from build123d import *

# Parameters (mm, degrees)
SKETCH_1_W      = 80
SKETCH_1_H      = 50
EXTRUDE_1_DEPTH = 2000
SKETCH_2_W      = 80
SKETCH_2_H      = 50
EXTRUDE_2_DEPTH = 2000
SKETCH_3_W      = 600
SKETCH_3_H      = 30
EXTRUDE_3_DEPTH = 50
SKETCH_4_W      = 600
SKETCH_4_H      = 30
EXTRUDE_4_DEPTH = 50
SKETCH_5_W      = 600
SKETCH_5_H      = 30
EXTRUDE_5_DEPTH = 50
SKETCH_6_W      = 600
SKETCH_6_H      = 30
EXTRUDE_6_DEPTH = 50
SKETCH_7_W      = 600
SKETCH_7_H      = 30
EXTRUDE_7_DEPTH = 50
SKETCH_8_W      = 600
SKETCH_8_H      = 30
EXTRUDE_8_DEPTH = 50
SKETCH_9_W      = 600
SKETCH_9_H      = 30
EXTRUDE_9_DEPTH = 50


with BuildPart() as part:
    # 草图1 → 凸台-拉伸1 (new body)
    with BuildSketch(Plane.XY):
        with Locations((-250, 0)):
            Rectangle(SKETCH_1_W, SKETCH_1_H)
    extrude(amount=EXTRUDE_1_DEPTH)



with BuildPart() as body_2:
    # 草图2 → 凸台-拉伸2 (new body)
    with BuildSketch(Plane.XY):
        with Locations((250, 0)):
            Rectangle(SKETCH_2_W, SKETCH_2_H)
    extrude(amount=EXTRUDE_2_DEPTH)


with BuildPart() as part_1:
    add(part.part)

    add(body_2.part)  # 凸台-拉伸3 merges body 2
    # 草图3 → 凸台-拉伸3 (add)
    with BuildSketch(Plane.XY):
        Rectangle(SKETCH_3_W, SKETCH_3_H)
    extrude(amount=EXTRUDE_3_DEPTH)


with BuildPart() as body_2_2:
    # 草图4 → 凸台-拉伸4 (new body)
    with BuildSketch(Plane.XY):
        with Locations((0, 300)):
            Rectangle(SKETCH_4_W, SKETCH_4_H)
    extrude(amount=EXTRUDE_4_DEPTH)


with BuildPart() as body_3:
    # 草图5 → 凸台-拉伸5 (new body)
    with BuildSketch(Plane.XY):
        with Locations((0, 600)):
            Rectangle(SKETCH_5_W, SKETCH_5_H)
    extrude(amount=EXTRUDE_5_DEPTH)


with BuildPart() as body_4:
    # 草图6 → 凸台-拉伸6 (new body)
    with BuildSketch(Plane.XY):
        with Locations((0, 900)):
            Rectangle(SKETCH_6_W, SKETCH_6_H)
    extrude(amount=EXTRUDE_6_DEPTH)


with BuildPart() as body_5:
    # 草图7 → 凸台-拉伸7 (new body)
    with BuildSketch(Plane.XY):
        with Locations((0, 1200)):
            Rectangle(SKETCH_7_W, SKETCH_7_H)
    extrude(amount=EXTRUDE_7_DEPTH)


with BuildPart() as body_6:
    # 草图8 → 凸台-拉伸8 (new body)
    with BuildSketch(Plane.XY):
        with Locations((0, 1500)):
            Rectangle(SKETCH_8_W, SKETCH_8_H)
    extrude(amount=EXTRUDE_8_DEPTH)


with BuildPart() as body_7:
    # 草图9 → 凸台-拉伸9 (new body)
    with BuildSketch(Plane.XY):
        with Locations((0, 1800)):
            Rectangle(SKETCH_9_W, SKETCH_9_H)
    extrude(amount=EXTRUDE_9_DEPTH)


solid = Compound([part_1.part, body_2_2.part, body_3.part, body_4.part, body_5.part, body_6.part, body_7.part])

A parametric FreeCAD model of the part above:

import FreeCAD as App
import Part
import Sketcher


def add_polygon(sketch, points):
    """Adds a closed chain of lines whose ends are joined by coincident constraints."""
    first, n = sketch.GeometryCount, len(points)
    for a, b in zip(points, points[1:] + points[:1]):
        sketch.addGeometry(Part.LineSegment(App.Vector(*a, 0), App.Vector(*b, 0)), False)
    for i in range(n):
        sketch.addConstraint(Sketcher.Constraint("Coincident", first + i, 2, first + (i + 1) % n, 1))

doc = App.newDocument("Part")
body = doc.addObject("PartDesign::Body", "Body")

# Sketch on XY plane
sketch1 = doc.addObject("Sketcher::SketchObject", "Sketch")
body.addObject(sketch1)
sketch1.AttachmentSupport = (doc.XY_Plane, [""])
sketch1.MapMode = "FlatFace"
add_polygon(sketch1, [(-290, 25), (-290, -25), (-210, -25), (-210, 25)])  # lines 0-3
sketch1.addConstraint([
    Sketcher.Constraint("Vertical", 0),
    Sketcher.Constraint("Horizontal", 1),
    Sketcher.Constraint("Vertical", 2),
    Sketcher.Constraint("Horizontal", 3),
    Sketcher.Constraint("DistanceX", 1, 1, 1, 2, 80.0),
    Sketcher.Constraint("DistanceY", 0, 2, 0, 1, 50.0),
    Sketcher.Constraint("DistanceX", 0, 2, -1, 1, 290.0),
    Sketcher.Constraint("DistanceY", 0, 2, -1, 1, 25.0),
])
pad1 = doc.addObject("PartDesign::Pad", "Pad")
body.addObject(pad1)
pad1.Profile = sketch1
pad1.Length = 2000
body2 = doc.addObject("PartDesign::Body", "Body001")

# Sketch on XY plane
sketch2 = doc.addObject("Sketcher::SketchObject", "Sketch001")
body2.addObject(sketch2)
sketch2.AttachmentSupport = (doc.getObject("XY_Plane001"), [""])
sketch2.MapMode = "FlatFace"
add_polygon(sketch2, [(210, 25), (210, -25), (290, -25), (290, 25)])  # lines 0-3
sketch2.addConstraint([
    Sketcher.Constraint("Vertical", 0),
    Sketcher.Constraint("Horizontal", 1),
    Sketcher.Constraint("Vertical", 2),
    Sketcher.Constraint("Horizontal", 3),
    Sketcher.Constraint("DistanceX", 1, 1, 1, 2, 80.0),
    Sketcher.Constraint("DistanceY", 0, 2, 0, 1, 50.0),
    Sketcher.Constraint("DistanceX", -1, 1, 0, 2, 210.0),
    Sketcher.Constraint("DistanceY", 0, 2, -1, 1, 25.0),
])
pad2 = doc.addObject("PartDesign::Pad", "Pad001")
body2.addObject(pad2)
pad2.Profile = sketch2
pad2.Length = 2000
body.AllowCompound = True
doc.recompute()

boolean = doc.addObject("PartDesign::Boolean", "Boolean")
body.addObject(boolean)
boolean.Type = "Fuse"
boolean.addObjects([body2])

# Sketch on XY plane
sketch3 = doc.addObject("Sketcher::SketchObject", "Sketch002")
body.addObject(sketch3)
sketch3.AttachmentSupport = (doc.XY_Plane, [""])
sketch3.MapMode = "FlatFace"
add_polygon(sketch3, [(-300, 15), (-300, -15), (300, -15), (300, 15)])  # lines 0-3
sketch3.addConstraint([
    Sketcher.Constraint("Vertical", 0),
    Sketcher.Constraint("Horizontal", 1),
    Sketcher.Constraint("Vertical", 2),
    Sketcher.Constraint("Horizontal", 3),
    Sketcher.Constraint("Symmetric", 0, 2, 2, 2, -1, 1),
    Sketcher.Constraint("DistanceX", 1, 1, 1, 2, 600.0),
    Sketcher.Constraint("DistanceY", 0, 2, 0, 1, 30.0),
])
pad3 = doc.addObject("PartDesign::Pad", "Pad002")
body.addObject(pad3)
pad3.Profile = sketch3
pad3.Length = 50
body3 = doc.addObject("PartDesign::Body", "Body002")

# Sketch on XY plane
sketch4 = doc.addObject("Sketcher::SketchObject", "Sketch003")
body3.addObject(sketch4)
sketch4.AttachmentSupport = (doc.getObject("XY_Plane002"), [""])
sketch4.MapMode = "FlatFace"
add_polygon(sketch4, [(-300, 315), (-300, 285), (300, 285), (300, 315)])  # lines 0-3
sketch4.addConstraint([
    Sketcher.Constraint("Vertical", 0),
    Sketcher.Constraint("Horizontal", 1),
    Sketcher.Constraint("Vertical", 2),
    Sketcher.Constraint("Horizontal", 3),
    Sketcher.Constraint("DistanceX", 1, 1, 1, 2, 600.0),
    Sketcher.Constraint("DistanceY", 0, 2, 0, 1, 30.0),
    Sketcher.Constraint("DistanceX", 0, 2, -1, 1, 300.0),
    Sketcher.Constraint("DistanceY", -1, 1, 0, 2, 285.0),
])
pad4 = doc.addObject("PartDesign::Pad", "Pad003")
body3.addObject(pad4)
pad4.Profile = sketch4
pad4.Length = 50
body4 = doc.addObject("PartDesign::Body", "Body003")

# Sketch on XY plane
sketch5 = doc.addObject("Sketcher::SketchObject", "Sketch004")
body4.addObject(sketch5)
sketch5.AttachmentSupport = (doc.getObject("XY_Plane003"), [""])
sketch5.MapMode = "FlatFace"
add_polygon(sketch5, [(-300, 615), (-300, 585), (300, 585), (300, 615)])  # lines 0-3
sketch5.addConstraint([
    Sketcher.Constraint("Vertical", 0),
    Sketcher.Constraint("Horizontal", 1),
    Sketcher.Constraint("Vertical", 2),
    Sketcher.Constraint("Horizontal", 3),
    Sketcher.Constraint("DistanceX", 1, 1, 1, 2, 600.0),
    Sketcher.Constraint("DistanceY", 0, 2, 0, 1, 30.0),
    Sketcher.Constraint("DistanceX", 0, 2, -1, 1, 300.0),
    Sketcher.Constraint("DistanceY", -1, 1, 0, 2, 585.0),
])
pad5 = doc.addObject("PartDesign::Pad", "Pad004")
body4.addObject(pad5)
pad5.Profile = sketch5
pad5.Length = 50
body5 = doc.addObject("PartDesign::Body", "Body004")

# Sketch on XY plane
sketch6 = doc.addObject("Sketcher::SketchObject", "Sketch005")
body5.addObject(sketch6)
sketch6.AttachmentSupport = (doc.getObject("XY_Plane004"), [""])
sketch6.MapMode = "FlatFace"
add_polygon(sketch6, [(-300, 915), (-300, 885), (300, 885), (300, 915)])  # lines 0-3
sketch6.addConstraint([
    Sketcher.Constraint("Vertical", 0),
    Sketcher.Constraint("Horizontal", 1),
    Sketcher.Constraint("Vertical", 2),
    Sketcher.Constraint("Horizontal", 3),
    Sketcher.Constraint("DistanceX", 1, 1, 1, 2, 600.0),
    Sketcher.Constraint("DistanceY", 0, 2, 0, 1, 30.0),
    Sketcher.Constraint("DistanceX", 0, 2, -1, 1, 300.0),
    Sketcher.Constraint("DistanceY", -1, 1, 0, 2, 885.0),
])
pad6 = doc.addObject("PartDesign::Pad", "Pad005")
body5.addObject(pad6)
pad6.Profile = sketch6
pad6.Length = 50
body6 = doc.addObject("PartDesign::Body", "Body005")

# Sketch on XY plane
sketch7 = doc.addObject("Sketcher::SketchObject", "Sketch006")
body6.addObject(sketch7)
sketch7.AttachmentSupport = (doc.getObject("XY_Plane005"), [""])
sketch7.MapMode = "FlatFace"
add_polygon(sketch7, [(-300, 1215), (-300, 1185), (300, 1185), (300, 1215)])  # lines 0-3
sketch7.addConstraint([
    Sketcher.Constraint("Vertical", 0),
    Sketcher.Constraint("Horizontal", 1),
    Sketcher.Constraint("Vertical", 2),
    Sketcher.Constraint("Horizontal", 3),
    Sketcher.Constraint("DistanceX", 1, 1, 1, 2, 600.0),
    Sketcher.Constraint("DistanceY", 0, 2, 0, 1, 30.0),
    Sketcher.Constraint("DistanceX", 0, 2, -1, 1, 300.0),
    Sketcher.Constraint("DistanceY", -1, 1, 0, 2, 1185.0),
])
pad7 = doc.addObject("PartDesign::Pad", "Pad006")
body6.addObject(pad7)
pad7.Profile = sketch7
pad7.Length = 50
body7 = doc.addObject("PartDesign::Body", "Body006")

# Sketch on XY plane
sketch8 = doc.addObject("Sketcher::SketchObject", "Sketch007")
body7.addObject(sketch8)
sketch8.AttachmentSupport = (doc.getObject("XY_Plane006"), [""])
sketch8.MapMode = "FlatFace"
add_polygon(sketch8, [(-300, 1515), (-300, 1485), (300, 1485), (300, 1515)])  # lines 0-3
sketch8.addConstraint([
    Sketcher.Constraint("Vertical", 0),
    Sketcher.Constraint("Horizontal", 1),
    Sketcher.Constraint("Vertical", 2),
    Sketcher.Constraint("Horizontal", 3),
    Sketcher.Constraint("DistanceX", 1, 1, 1, 2, 600.0),
    Sketcher.Constraint("DistanceY", 0, 2, 0, 1, 30.0),
    Sketcher.Constraint("DistanceX", 0, 2, -1, 1, 300.0),
    Sketcher.Constraint("DistanceY", -1, 1, 0, 2, 1485.0),
])
pad8 = doc.addObject("PartDesign::Pad", "Pad007")
body7.addObject(pad8)
pad8.Profile = sketch8
pad8.Length = 50
body8 = doc.addObject("PartDesign::Body", "Body007")

# Sketch on XY plane
sketch9 = doc.addObject("Sketcher::SketchObject", "Sketch008")
body8.addObject(sketch9)
sketch9.AttachmentSupport = (doc.getObject("XY_Plane007"), [""])
sketch9.MapMode = "FlatFace"
add_polygon(sketch9, [(-300, 1815), (-300, 1785), (300, 1785), (300, 1815)])  # lines 0-3
sketch9.addConstraint([
    Sketcher.Constraint("Vertical", 0),
    Sketcher.Constraint("Horizontal", 1),
    Sketcher.Constraint("Vertical", 2),
    Sketcher.Constraint("Horizontal", 3),
    Sketcher.Constraint("DistanceX", 1, 1, 1, 2, 600.0),
    Sketcher.Constraint("DistanceY", 0, 2, 0, 1, 30.0),
    Sketcher.Constraint("DistanceX", 0, 2, -1, 1, 300.0),
    Sketcher.Constraint("DistanceY", -1, 1, 0, 2, 1785.0),
])
pad9 = doc.addObject("PartDesign::Pad", "Pad008")
body8.addObject(pad9)
pad9.Profile = sketch9
pad9.Length = 50

doc.recompute()
